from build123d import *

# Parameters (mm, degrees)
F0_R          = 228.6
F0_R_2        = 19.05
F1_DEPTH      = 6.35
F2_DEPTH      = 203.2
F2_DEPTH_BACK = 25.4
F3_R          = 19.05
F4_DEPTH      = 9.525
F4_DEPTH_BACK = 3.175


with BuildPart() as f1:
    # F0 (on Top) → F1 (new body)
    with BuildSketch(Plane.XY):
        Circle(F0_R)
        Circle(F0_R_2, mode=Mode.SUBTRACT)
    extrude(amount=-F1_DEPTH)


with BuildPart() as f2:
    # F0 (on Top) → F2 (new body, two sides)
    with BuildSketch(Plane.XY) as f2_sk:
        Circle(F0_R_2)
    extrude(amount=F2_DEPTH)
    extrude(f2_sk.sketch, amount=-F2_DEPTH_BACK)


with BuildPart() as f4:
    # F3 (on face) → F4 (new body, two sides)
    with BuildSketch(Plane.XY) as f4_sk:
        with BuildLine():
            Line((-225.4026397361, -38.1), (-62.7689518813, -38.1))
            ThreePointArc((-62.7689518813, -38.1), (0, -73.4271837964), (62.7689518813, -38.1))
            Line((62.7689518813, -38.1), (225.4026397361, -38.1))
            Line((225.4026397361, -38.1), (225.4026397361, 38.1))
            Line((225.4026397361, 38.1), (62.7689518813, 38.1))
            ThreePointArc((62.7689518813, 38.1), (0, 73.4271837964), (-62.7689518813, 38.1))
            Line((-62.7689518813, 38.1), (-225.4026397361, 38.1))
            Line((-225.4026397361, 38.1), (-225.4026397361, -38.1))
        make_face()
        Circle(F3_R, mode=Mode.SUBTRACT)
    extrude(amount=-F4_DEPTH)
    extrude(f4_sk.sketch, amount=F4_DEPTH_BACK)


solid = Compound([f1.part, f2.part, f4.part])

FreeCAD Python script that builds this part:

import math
import FreeCAD as App
import Part
import Sketcher
from FreeCAD import Vector
Q = App.Units.Quantity

doc = App.newDocument("Part")
body = doc.addObject("PartDesign::Body", "Body")

# Sketch on XY plane
sketch1 = body.newObject("Sketcher::SketchObject", "Sketch")
sketch1.AttachmentSupport = (doc.getObject("XY_Plane"), [""])
sketch1.MapMode = "FlatFace"
sketch1.addGeometry([
    Part.Circle(Vector(0, 0, 0), Vector(0, 0, 1), 229),
    Part.Circle(Vector(0, 0, 0), Vector(0, 0, 1), 19),
], False)
sketch1.addConstraint([
    Sketcher.Constraint("Coincident", 0, 3, -1, 1),
    Sketcher.Constraint("Coincident", 1, 3, -1, 1),
    Sketcher.Constraint("Diameter", 0, Q("18 in")),
    Sketcher.Constraint("Diameter", 1, Q("1.5 in")),
])
pad1 = body.newObject("PartDesign::Pad", "Pad")
pad1.Profile = sketch1
pad1.Length = Q("0.25 in")
pad1.Reversed = True
body2 = doc.addObject("PartDesign::Body", "Body001")

# Sketch on XY plane
sketch2 = body2.newObject("Sketcher::SketchObject", "Sketch001")
sketch2.AttachmentSupport = (doc.getObject("XY_Plane001"), [""])
sketch2.MapMode = "FlatFace"
sketch2.addGeometry(Part.Circle(Vector(0, 0, 0), Vector(0, 0, 1), 19), False)
sketch2.addConstraint([
    Sketcher.Constraint("Coincident", 0, 3, -1, 1),
    Sketcher.Constraint("Diameter", 0, Q("1.5 in")),
])
pad2 = body2.newObject("PartDesign::Pad", "Pad001")
pad2.Profile = sketch2
pad2.Type = "TwoLengths"
pad2.Length = Q("8 in")
pad2.Length2 = Q("1 in")
body3 = doc.addObject("PartDesign::Body", "Body002")

# Sketch on XY plane
sketch3 = body3.newObject("Sketcher::SketchObject", "Sketch002")
sketch3.AttachmentSupport = (doc.getObject("XY_Plane002"), [""])
sketch3.MapMode = "FlatFace"
sketch3.addGeometry([
    Part.LineSegment(Vector(-225, -38, 0), Vector(-63, -38, 0)),  # 0
    Part.ArcOfCircle(Part.Circle(Vector(0, 0, 0), Vector(0, 0, 1), 73), math.radians(-149), math.radians(-31)),  # 1
    Part.LineSegment(Vector(63, -38, 0), Vector(225, -38, 0)),  # 2
    Part.LineSegment(Vector(225, -38, 0), Vector(225, 38, 0)),  # 3
    Part.LineSegment(Vector(225, 38, 0), Vector(63, 38, 0)),  # 4
    Part.ArcOfCircle(Part.Circle(Vector(0, 0, 0), Vector(0, 0, 1), 73), math.radians(31), math.radians(149)),  # 5
    Part.LineSegment(Vector(-63, 38, 0), Vector(-225, 38, 0)),  # 6
    Part.LineSegment(Vector(-225, 38, 0), Vector(-225, -38, 0)),  # 7
    Part.Circle(Vector(0, 0, 0), Vector(0, 0, 1), 19),  # 8
], False)
sketch3.addConstraint([
    Sketcher.Constraint("Coincident", 0, 2, 1, 1),
    Sketcher.Constraint("Coincident", 1, 2, 2, 1),
    Sketcher.Constraint("Coincident", 2, 2, 3, 1),
    Sketcher.Constraint("Coincident", 3, 2, 4, 1),
    Sketcher.Constraint("Coincident", 4, 2, 5, 1),
    Sketcher.Constraint("Coincident", 5, 2, 6, 1),
    Sketcher.Constraint("Coincident", 6, 2, 7, 1),
    Sketcher.Constraint("Coincident", 7, 2, 0, 1),
    Sketcher.Constraint("Horizontal", 0),
    Sketcher.Constraint("Horizontal", 2),
    Sketcher.Constraint("Vertical", 3),
    Sketcher.Constraint("Horizontal", 4),
    Sketcher.Constraint("Horizontal", 6),
    Sketcher.Constraint("Vertical", 7),
    Sketcher.Constraint("Coincident", 1, 3, -1, 1),
    Sketcher.Constraint("Coincident", 5, 3, -1, 1),
    Sketcher.Constraint("Coincident", 8, 3, -1, 1),
    Sketcher.Constraint("Equal", 1, 5),
    Sketcher.Constraint("Symmetric", 2, 2, 6, 2, -1, 1),
    Sketcher.Constraint("Horizontal", 0, 2, 1, 2),
    Sketcher.Constraint("Horizontal", 4, 2, 5, 2),
    Sketcher.Constraint("Diameter", 8, Q("1.5 in")),
    Sketcher.Constraint("DistanceY", 3, 1, 3, 2, Q("3 in")),
    Sketcher.Constraint("Radius", 1, 73.427184),
    Sketcher.Constraint("DistanceX", 0, 1, 0, 2, 162.633688),
])
pad3 = body3.newObject("PartDesign::Pad", "Pad002")
pad3.Profile = sketch3
pad3.Type = "TwoLengths"
pad3.Length = Q("0.375 in")
pad3.Length2 = Q("0.125 in")
pad3.Reversed = True

doc.recompute()
